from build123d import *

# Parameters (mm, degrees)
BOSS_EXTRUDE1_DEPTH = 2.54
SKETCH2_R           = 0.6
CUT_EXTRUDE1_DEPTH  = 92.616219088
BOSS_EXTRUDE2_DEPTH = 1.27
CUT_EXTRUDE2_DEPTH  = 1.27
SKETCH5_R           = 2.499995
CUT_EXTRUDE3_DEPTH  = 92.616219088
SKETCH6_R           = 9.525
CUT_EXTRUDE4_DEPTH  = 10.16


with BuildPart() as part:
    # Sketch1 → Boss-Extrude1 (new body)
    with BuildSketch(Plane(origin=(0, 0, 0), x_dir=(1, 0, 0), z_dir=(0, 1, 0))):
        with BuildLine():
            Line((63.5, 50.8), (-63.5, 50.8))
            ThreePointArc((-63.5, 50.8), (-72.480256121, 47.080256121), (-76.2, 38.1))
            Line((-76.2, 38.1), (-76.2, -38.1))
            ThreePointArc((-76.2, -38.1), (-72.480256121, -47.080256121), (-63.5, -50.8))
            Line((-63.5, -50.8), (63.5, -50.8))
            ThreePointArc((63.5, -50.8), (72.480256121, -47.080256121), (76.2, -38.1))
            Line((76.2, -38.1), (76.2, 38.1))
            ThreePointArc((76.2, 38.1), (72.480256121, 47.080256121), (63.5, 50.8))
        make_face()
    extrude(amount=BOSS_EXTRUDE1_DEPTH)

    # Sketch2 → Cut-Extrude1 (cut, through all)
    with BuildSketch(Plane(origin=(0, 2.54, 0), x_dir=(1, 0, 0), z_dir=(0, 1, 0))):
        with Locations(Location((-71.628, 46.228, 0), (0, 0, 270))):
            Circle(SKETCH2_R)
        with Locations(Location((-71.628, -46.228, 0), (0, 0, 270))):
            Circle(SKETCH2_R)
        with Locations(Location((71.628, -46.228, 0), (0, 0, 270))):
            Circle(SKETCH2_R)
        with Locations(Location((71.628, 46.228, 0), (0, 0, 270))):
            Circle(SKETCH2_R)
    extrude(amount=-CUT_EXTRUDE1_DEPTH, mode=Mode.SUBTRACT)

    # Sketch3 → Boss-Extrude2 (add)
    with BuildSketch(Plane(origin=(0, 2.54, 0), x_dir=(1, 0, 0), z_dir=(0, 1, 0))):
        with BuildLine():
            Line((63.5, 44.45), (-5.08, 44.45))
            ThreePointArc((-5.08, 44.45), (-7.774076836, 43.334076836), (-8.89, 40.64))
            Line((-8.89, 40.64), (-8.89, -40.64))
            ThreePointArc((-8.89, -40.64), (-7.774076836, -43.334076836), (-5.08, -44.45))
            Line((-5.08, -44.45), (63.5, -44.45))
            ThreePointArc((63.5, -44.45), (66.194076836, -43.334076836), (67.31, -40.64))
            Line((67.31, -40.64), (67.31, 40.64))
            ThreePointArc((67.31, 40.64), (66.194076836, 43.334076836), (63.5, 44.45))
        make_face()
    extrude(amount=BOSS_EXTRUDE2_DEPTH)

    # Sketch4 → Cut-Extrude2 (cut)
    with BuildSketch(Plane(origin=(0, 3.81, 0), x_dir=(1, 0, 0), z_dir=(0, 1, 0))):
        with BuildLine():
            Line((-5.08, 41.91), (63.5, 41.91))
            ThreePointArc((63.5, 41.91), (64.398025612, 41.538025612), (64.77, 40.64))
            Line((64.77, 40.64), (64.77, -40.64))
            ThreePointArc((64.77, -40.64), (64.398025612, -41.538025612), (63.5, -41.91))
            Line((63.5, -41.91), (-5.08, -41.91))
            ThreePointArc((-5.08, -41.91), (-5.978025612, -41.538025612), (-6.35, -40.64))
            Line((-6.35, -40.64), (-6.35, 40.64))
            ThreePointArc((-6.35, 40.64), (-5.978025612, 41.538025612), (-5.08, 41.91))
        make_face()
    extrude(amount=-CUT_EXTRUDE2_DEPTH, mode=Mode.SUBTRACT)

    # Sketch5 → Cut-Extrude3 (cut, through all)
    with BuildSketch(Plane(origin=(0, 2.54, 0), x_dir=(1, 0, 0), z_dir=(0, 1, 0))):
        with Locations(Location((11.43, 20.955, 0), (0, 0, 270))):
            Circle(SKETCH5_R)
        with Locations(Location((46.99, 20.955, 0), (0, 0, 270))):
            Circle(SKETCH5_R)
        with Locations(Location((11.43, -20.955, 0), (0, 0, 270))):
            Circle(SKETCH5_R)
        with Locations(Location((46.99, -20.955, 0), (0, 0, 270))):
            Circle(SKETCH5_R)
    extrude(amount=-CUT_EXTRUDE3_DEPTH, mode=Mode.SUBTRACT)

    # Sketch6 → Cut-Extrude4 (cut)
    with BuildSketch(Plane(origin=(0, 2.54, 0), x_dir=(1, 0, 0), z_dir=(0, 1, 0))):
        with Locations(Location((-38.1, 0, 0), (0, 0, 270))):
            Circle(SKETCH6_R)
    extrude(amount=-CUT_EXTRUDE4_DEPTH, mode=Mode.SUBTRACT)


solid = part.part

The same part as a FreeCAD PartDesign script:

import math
import FreeCAD as App
import Part
import Sketcher
Q = App.Units.Quantity

doc = App.newDocument("Part")
body = doc.addObject("PartDesign::Body", "Body")

sketch1 = doc.addObject("Sketcher::SketchObject", "Sketch")
body.addObject(sketch1)
sketch1.AttachmentSupport = (doc.XZ_Plane, [""])
sketch1.MapMode = "FlatFace"
sketch1.addGeometry([
    Part.LineSegment(App.Vector(64, -51, 0), App.Vector(-64, -51, 0)),
    Part.ArcOfCircle(Part.Circle(App.Vector(-64, -38, 0), App.Vector(0, 0, 1), 13), math.radians(180), math.radians(270)),
    Part.LineSegment(App.Vector(-76, -38, 0), App.Vector(-76, 38, 0)),
    Part.ArcOfCircle(Part.Circle(App.Vector(-64, 38, 0), App.Vector(0, 0, 1), 13), math.radians(90), math.radians(180)),
    Part.LineSegment(App.Vector(-64, 51, 0), App.Vector(64, 51, 0)),
    Part.ArcOfCircle(Part.Circle(App.Vector(64, 38, 0), App.Vector(0, 0, 1), 13), math.radians(0), math.radians(90)),
    Part.LineSegment(App.Vector(76, 38, 0), App.Vector(76, -38, 0)),
    Part.ArcOfCircle(Part.Circle(App.Vector(64, -38, 0), App.Vector(0, 0, 1), 13), math.radians(-90), math.radians(0)),
], False)
sketch1.addConstraint([
    Sketcher.Constraint("Tangent", 0, 2, 1, 2),
    Sketcher.Constraint("Tangent", 1, 1, 2, 1),
    Sketcher.Constraint("Tangent", 2, 2, 3, 2),
    Sketcher.Constraint("Tangent", 3, 1, 4, 1),
    Sketcher.Constraint("Tangent", 4, 2, 5, 2),
    Sketcher.Constraint("Tangent", 5, 1, 6, 1),
    Sketcher.Constraint("Tangent", 6, 2, 7, 2),
    Sketcher.Constraint("Tangent", 7, 1, 0, 1),
    Sketcher.Constraint("Horizontal", 0),
    Sketcher.Constraint("Vertical", 2),
    Sketcher.Constraint("Horizontal", 4),
    Sketcher.Constraint("Vertical", 6),
    Sketcher.Constraint("Equal", 1, 3),
    Sketcher.Constraint("Equal", 3, 5),
    Sketcher.Constraint("Equal", 5, 7),
    Sketcher.Constraint("Symmetric", 1, 3, 5, 3, -1, 1),
    Sketcher.Constraint("Radius", 1, Q("0.5 in")),
    Sketcher.Constraint("DistanceX", 0, 2, 0, 1, Q("5 in")),
    Sketcher.Constraint("DistanceY", 2, 1, 2, 2, Q("3 in")),
])
pad1 = doc.addObject("PartDesign::Pad", "Pad")
body.addObject(pad1)
pad1.Profile = sketch1
pad1.Length = Q("0.1 in")
pad1.Reversed = True

sketch2 = doc.addObject("Sketcher::SketchObject", "Sketch001")
body.addObject(sketch2)
sketch2.AttachmentSupport = (doc.XZ_Plane, [""])
sketch2.MapMode = "FlatFace"
sketch2.AttachmentOffset = App.Placement(App.Vector(0, 0, -0.1 * 25.4), App.Rotation())
sketch2.addGeometry([
    Part.Circle(App.Vector(-71.6, -46.2, 0), App.Vector(0, 0, 1), 0.6),
    Part.Circle(App.Vector(-71.6, 46.2, 0), App.Vector(0, 0, 1), 0.6),
    Part.Circle(App.Vector(71.6, 46.2, 0), App.Vector(0, 0, 1), 0.6),
    Part.Circle(App.Vector(71.6, -46.2, 0), App.Vector(0, 0, 1), 0.6),
], False)
sketch2.addConstraint([
    Sketcher.Constraint("Equal", 0, 1),
    Sketcher.Constraint("Equal", 1, 2),
    Sketcher.Constraint("Equal", 2, 3),
    Sketcher.Constraint("Symmetric", 0, 3, 2, 3, -1, 1),
    Sketcher.Constraint("Symmetric", 1, 3, 3, 3, -1, 1),
    Sketcher.Constraint("Symmetric", 1, 3, 2, 3, -2),
    Sketcher.Constraint("Diameter", 0, 1.2),
    Sketcher.Constraint("DistanceX", 0, 3, -1, 1, Q("2.82 in")),
    Sketcher.Constraint("DistanceY", 0, 3, -1, 1, Q("1.82 in")),
])
pocket1 = doc.addObject("PartDesign::Pocket", "Pocket")
body.addObject(pocket1)
pocket1.Profile = sketch2
pocket1.Type = "ThroughAll"
pocket1.Reversed = True

sketch3 = doc.addObject("Sketcher::SketchObject", "Sketch002")
body.addObject(sketch3)
sketch3.AttachmentSupport = (doc.XZ_Plane, [""])
sketch3.MapMode = "FlatFace"
sketch3.AttachmentOffset = App.Placement(App.Vector(0, 0, -0.1 * 25.4), App.Rotation())
sketch3.addGeometry([
    Part.LineSegment(App.Vector(63.5, -44.5, 0), App.Vector(-5.1, -44.5, 0)),
    Part.ArcOfCircle(Part.Circle(App.Vector(-5.1, -40.6, 0), App.Vector(0, 0, 1), 3.8), math.radians(-180), math.radians(-90)),
    Part.LineSegment(App.Vector(-8.9, -40.6, 0), App.Vector(-8.9, 40.6, 0)),
    Part.ArcOfCircle(Part.Circle(App.Vector(-5.1, 40.6, 0), App.Vector(0, 0, 1), 3.8), math.radians(90), math.radians(180)),
    Part.LineSegment(App.Vector(-5.1, 44.5, 0), App.Vector(63.5, 44.5, 0)),
    Part.ArcOfCircle(Part.Circle(App.Vector(63.5, 40.6, 0), App.Vector(0, 0, 1), 3.8), math.radians(0), math.radians(90)),
    Part.LineSegment(App.Vector(67.3, 40.6, 0), App.Vector(67.3, -40.6, 0)),
    Part.ArcOfCircle(Part.Circle(App.Vector(63.5, -40.6, 0), App.Vector(0, 0, 1), 3.8), math.radians(-90), math.radians(0)),
], False)
sketch3.addConstraint([
    Sketcher.Constraint("Tangent", 0, 2, 1, 2),
    Sketcher.Constraint("Tangent", 1, 1, 2, 1),
    Sketcher.Constraint("Tangent", 2, 2, 3, 2),
    Sketcher.Constraint("Tangent", 3, 1, 4, 1),
    Sketcher.Constraint("Tangent", 4, 2, 5, 2),
    Sketcher.Constraint("Tangent", 5, 1, 6, 1),
    Sketcher.Constraint("Tangent", 6, 2, 7, 2),
    Sketcher.Constraint("Tangent", 7, 1, 0, 1),
    Sketcher.Constraint("Horizontal", 0),
    Sketcher.Constraint("Vertical", 2),
    Sketcher.Constraint("Horizontal", 4),
    Sketcher.Constraint("Vertical", 6),
    Sketcher.Constraint("Equal", 1, 3),
    Sketcher.Constraint("Equal", 3, 5),
    Sketcher.Constraint("Equal", 5, 7),
    Sketcher.Constraint("Radius", 1, Q("0.15 in")),
    Sketcher.Constraint("DistanceX", 0, 2, 0, 1, Q("2.7 in")),
    Sketcher.Constraint("DistanceY", 2, 1, 2, 2, Q("3.2 in")),
    Sketcher.Constraint("DistanceX", 1, 3, -1, 1, Q("0.2 in")),
    Sketcher.Constraint("DistanceY", 1, 3, -1, 1, Q("1.6 in")),
])
pad2 = doc.addObject("PartDesign::Pad", "Pad001")
body.addObject(pad2)
pad2.Profile = sketch3
pad2.Length = Q("0.05 in")
pad2.Reversed = True

sketch4 = doc.addObject("Sketcher::SketchObject", "Sketch003")
body.addObject(sketch4)
sketch4.AttachmentSupport = (doc.XZ_Plane, [""])
sketch4.MapMode = "FlatFace"
sketch4.AttachmentOffset = App.Placement(App.Vector(0, 0, -0.15 * 25.4), App.Rotation())
sketch4.addGeometry([
    Part.LineSegment(App.Vector(63.5, -41.9, 0), App.Vector(-5.1, -41.9, 0)),
    Part.ArcOfCircle(Part.Circle(App.Vector(-5.1, -40.6, 0), App.Vector(0, 0, 1), 1.3), math.radians(180), math.radians(270)),
    Part.LineSegment(App.Vector(-6.3, -40.6, 0), App.Vector(-6.3, 40.6, 0)),
    Part.ArcOfCircle(Part.Circle(App.Vector(-5.1, 40.6, 0), App.Vector(0, 0, 1), 1.3), math.radians(90), math.radians(180)),
    Part.LineSegment(App.Vector(-5.1, 41.9, 0), App.Vector(63.5, 41.9, 0)),
    Part.ArcOfCircle(Part.Circle(App.Vector(63.5, 40.6, 0), App.Vector(0, 0, 1), 1.3), math.radians(0), math.radians(90)),
    Part.LineSegment(App.Vector(64.8, 40.6, 0), App.Vector(64.8, -40.6, 0)),
    Part.ArcOfCircle(Part.Circle(App.Vector(63.5, -40.6, 0), App.Vector(0, 0, 1), 1.3), math.radians(-90), math.radians(0)),
], False)
sketch4.addConstraint([
    Sketcher.Constraint("Tangent", 0, 2, 1, 2),
    Sketcher.Constraint("Tangent", 1, 1, 2, 1),
    Sketcher.Constraint("Tangent", 2, 2, 3, 2),
    Sketcher.Constraint("Tangent", 3, 1, 4, 1),
    Sketcher.Constraint("Tangent", 4, 2, 5, 2),
    Sketcher.Constraint("Tangent", 5, 1, 6, 1),
    Sketcher.Constraint("Tangent", 6, 2, 7, 2),
    Sketcher.Constraint("Tangent", 7, 1, 0, 1),
    Sketcher.Constraint("Horizontal", 0),
    Sketcher.Constraint("Vertical", 2),
    Sketcher.Constraint("Horizontal", 4),
    Sketcher.Constraint("Vertical", 6),
    Sketcher.Constraint("Equal", 1, 3),
    Sketcher.Constraint("Equal", 3, 5),
    Sketcher.Constraint("Equal", 5, 7),
    Sketcher.Constraint("Radius", 1, Q("0.05 in")),
    Sketcher.Constraint("DistanceX", 0, 2, 0, 1, Q("2.7 in")),
    Sketcher.Constraint("DistanceY", 2, 1, 2, 2, Q("3.2 in")),
    Sketcher.Constraint("DistanceX", 1, 3, -1, 1, Q("0.2 in")),
    Sketcher.Constraint("DistanceY", 1, 3, -1, 1, Q("1.6 in")),
])
pocket2 = doc.addObject("PartDesign::Pocket", "Pocket001")
body.addObject(pocket2)
pocket2.Profile = sketch4
pocket2.Length = Q("0.05 in")
pocket2.Reversed = True

sketch5 = doc.addObject("Sketcher::SketchObject", "Sketch004")
body.addObject(sketch5)
sketch5.AttachmentSupport = (doc.XZ_Plane, [""])
sketch5.MapMode = "FlatFace"
sketch5.AttachmentOffset = App.Placement(App.Vector(0, 0, -0.1 * 25.4), App.Rotation())
sketch5.addGeometry([
    Part.Circle(App.Vector(11.4, -21, 0), App.Vector(0, 0, 1), 2.5),
    Part.Circle(App.Vector(47, -21, 0), App.Vector(0, 0, 1), 2.5),
    Part.Circle(App.Vector(11.4, 21, 0), App.Vector(0, 0, 1), 2.5),
    Part.Circle(App.Vector(47, 21, 0), App.Vector(0, 0, 1), 2.5),
], False)
sketch5.addConstraint([
    Sketcher.Constraint("Equal", 0, 1),
    Sketcher.Constraint("Equal", 1, 2),
    Sketcher.Constraint("Equal", 2, 3),
    Sketcher.Constraint("Symmetric", 0, 3, 2, 3, -1),
    Sketcher.Constraint("Symmetric", 1, 3, 3, 3, -1),
    Sketcher.Constraint("Horizontal", 0, 3, 1, 3),
    Sketcher.Constraint("DistanceX", 0, 3, 1, 3, Q("1.4 in")),
    Sketcher.Constraint("DistanceX", -1, 1, 0, 3, Q("0.45 in")),
    Sketcher.Constraint("DistanceY", 0, 3, 2, 3, Q("1.65 in")),
    Sketcher.Constraint("Diameter", 0, 4.99999),
])
pocket3 = doc.addObject("PartDesign::Pocket", "Pocket002")
body.addObject(pocket3)
pocket3.Profile = sketch5
pocket3.Type = "ThroughAll"
pocket3.Reversed = True

sketch6 = doc.addObject("Sketcher::SketchObject", "Sketch005")
body.addObject(sketch6)
sketch6.AttachmentSupport = (doc.XZ_Plane, [""])
sketch6.MapMode = "FlatFace"
sketch6.AttachmentOffset = App.Placement(App.Vector(0, 0, -0.1 * 25.4), App.Rotation())
sketch6.addGeometry(Part.Circle(App.Vector(-38, 0, 0), App.Vector(0, 0, 1), 10), False)
sketch6.addConstraint([
    Sketcher.Constraint("PointOnObject", 0, 3, -1),
    Sketcher.Constraint("Diameter", 0, Q("0.75 in")),
    Sketcher.Constraint("DistanceX", 0, 3, -1, 1, Q("1.5 in")),
])
pocket4 = doc.addObject("PartDesign::Pocket", "Pocket003")
body.addObject(pocket4)
pocket4.Profile = sketch6
pocket4.Length = Q("0.4 in")
pocket4.Reversed = True

doc.recompute()
